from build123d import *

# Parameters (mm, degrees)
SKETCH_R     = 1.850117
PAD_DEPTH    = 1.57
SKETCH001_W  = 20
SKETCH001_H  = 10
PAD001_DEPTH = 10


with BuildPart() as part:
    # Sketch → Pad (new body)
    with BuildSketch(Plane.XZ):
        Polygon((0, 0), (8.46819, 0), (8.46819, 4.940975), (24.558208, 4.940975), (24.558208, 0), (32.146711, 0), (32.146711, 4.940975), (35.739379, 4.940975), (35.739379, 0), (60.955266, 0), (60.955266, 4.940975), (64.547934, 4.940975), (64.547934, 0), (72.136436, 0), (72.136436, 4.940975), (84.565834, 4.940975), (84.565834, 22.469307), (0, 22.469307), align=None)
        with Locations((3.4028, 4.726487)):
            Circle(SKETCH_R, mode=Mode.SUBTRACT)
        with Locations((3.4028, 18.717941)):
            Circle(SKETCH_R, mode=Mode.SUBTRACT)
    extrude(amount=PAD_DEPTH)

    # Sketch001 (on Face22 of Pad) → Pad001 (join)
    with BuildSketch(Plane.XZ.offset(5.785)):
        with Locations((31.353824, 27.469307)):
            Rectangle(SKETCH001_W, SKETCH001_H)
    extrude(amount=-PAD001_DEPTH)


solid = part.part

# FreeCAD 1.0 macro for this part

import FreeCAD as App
import Part
import Sketcher
from FreeCAD import Vector
Q = App.Units.Quantity


def add_polygon(sketch, points):
    """Adds a closed chain of lines whose ends are joined by coincident constraints."""
    first, n = sketch.GeometryCount, len(points)
    for a, b in zip(points, points[1:] + points[:1]):
        sketch.addGeometry(Part.LineSegment(App.Vector(*a, 0), App.Vector(*b, 0)), False)
    for i in range(n):
        sketch.addConstraint(Sketcher.Constraint("Coincident", first + i, 2, first + (i + 1) % n, 1))

doc = App.newDocument("Part")
body = doc.addObject("PartDesign::Body", "Body")

# Sketch on XZ plane
sketch1 = body.newObject("Sketcher::SketchObject", "Sketch")
sketch1.AttachmentSupport = (doc.getObject("XZ_Plane"), [""])
sketch1.MapMode = "FlatFace"
add_polygon(sketch1, [(0, 0), (8.5, 0), (8.5, 4.9), (24.6, 4.9), (24.6, 0), (32.1, 0), (32.1, 4.9), (35.7, 4.9), (35.7, 0), (61, 0), (61, 4.9), (64.5, 4.9), (64.5, 0), (72.1, 0), (72.1, 4.9), (84.6, 4.9), (84.6, 22.5), (0, 22.5)])  # lines 0-17
sketch1.addGeometry(Part.Circle(Vector(3.4, 4.7, 0), Vector(0, 0, 1), 1.9), False)  # 18
sketch1.addGeometry(Part.Circle(Vector(3.4, 18.7, 0), Vector(0, 0, 1), 1.9), False)  # 19
sketch1.addConstraint(Sketcher.Constraint("Horizontal", 0))
sketch1.addConstraint(Sketcher.Constraint("Vertical", 1))
sketch1.addConstraint(Sketcher.Constraint("Horizontal", 2))
sketch1.addConstraint(Sketcher.Constraint("Vertical", 3))
sketch1.addConstraint(Sketcher.Constraint("Horizontal", 4))
sketch1.addConstraint(Sketcher.Constraint("Vertical", 5))
sketch1.addConstraint(Sketcher.Constraint("Horizontal", 6))
sketch1.addConstraint(Sketcher.Constraint("Vertical", 7))
sketch1.addConstraint(Sketcher.Constraint("Horizontal", 8))
sketch1.addConstraint(Sketcher.Constraint("Vertical", 9))
sketch1.addConstraint(Sketcher.Constraint("Horizontal", 10))
sketch1.addConstraint(Sketcher.Constraint("Vertical", 11))
sketch1.addConstraint(Sketcher.Constraint("Horizontal", 12))
sketch1.addConstraint(Sketcher.Constraint("Vertical", 13))
sketch1.addConstraint(Sketcher.Constraint("Horizontal", 14))
sketch1.addConstraint(Sketcher.Constraint("Vertical", 15))
sketch1.addConstraint(Sketcher.Constraint("Horizontal", 16))
sketch1.addConstraint(Sketcher.Constraint("Vertical", 17))
sketch1.addConstraint(Sketcher.Constraint("Coincident", 17, 2, -1, 1))
sketch1.addConstraint(Sketcher.Constraint("Equal", 18, 19))
sketch1.addConstraint(Sketcher.Constraint("PointOnObject", 3, 2, -1))
sketch1.addConstraint(Sketcher.Constraint("PointOnObject", 7, 2, -1))
sketch1.addConstraint(Sketcher.Constraint("PointOnObject", 11, 2, -1))
sketch1.addConstraint(Sketcher.Constraint("Horizontal", 2, 2, 5, 2))
sketch1.addConstraint(Sketcher.Constraint("Horizontal", 6, 2, 9, 2))
sketch1.addConstraint(Sketcher.Constraint("Horizontal", 10, 2, 13, 2))
sketch1.addConstraint(Sketcher.Constraint("Vertical", 18, 3, 19, 3))
sketch1.addConstraint(Sketcher.Constraint("Equal", 6, 10))
sketch1.addConstraint(Sketcher.Constraint("Equal", 4, 12))
sketch1.addConstraint(Sketcher.Constraint("Diameter", 18, Q("3.700234 mm")))
sketch1.addConstraint(Sketcher.Constraint("DistanceX", 0, 1, 0, 2, Q("8.46819 mm")))
sketch1.addConstraint(Sketcher.Constraint("DistanceX", 2, 1, 2, 2, Q("16.090018 mm")))
sketch1.addConstraint(Sketcher.Constraint("DistanceY", 15, 1, 15, 2, Q("17.528332 mm")))
sketch1.addConstraint(Sketcher.Constraint("DistanceX", -1, 1, 18, 3, Q("3.4028 mm")))
sketch1.addConstraint(Sketcher.Constraint("DistanceX", 10, 2, 14, 2, Q("20.0179 mm")))
sketch1.addConstraint(Sketcher.Constraint("DistanceX", 4, 1, 4, 2, Q("7.588503 mm")))
sketch1.addConstraint(Sketcher.Constraint("DistanceX", 6, 1, 6, 2, Q("3.592668 mm")))
sketch1.addConstraint(Sketcher.Constraint("DistanceX", 8, 1, 8, 2, Q("25.215887 mm")))
sketch1.addConstraint(Sketcher.Constraint("DistanceY", 1, 1, 1, 2, Q("4.940975 mm")))
sketch1.addConstraint(Sketcher.Constraint("DistanceY", -1, 1, 19, 3, Q("18.717941 mm")))
sketch1.addConstraint(Sketcher.Constraint("DistanceY", 18, 3, 1, 2, Q("0.214488 mm")))
pad1 = body.newObject("PartDesign::Pad", "Pad")
pad1.Profile = sketch1
pad1.Length = 1.57

# Sketch on XZ plane
sketch2 = body.newObject("Sketcher::SketchObject", "Sketch001")
sketch2.AttachmentSupport = (doc.getObject("XZ_Plane"), [""])
sketch2.MapMode = "FlatFace"
sketch2.AttachmentOffset = App.Placement(Vector(0, 0, 5.785), App.Rotation())
add_polygon(sketch2, [(21, 32), (21, 22), (41, 22), (41, 32)])  # lines 0-3
sketch2.addConstraint(Sketcher.Constraint("Vertical", 0))
sketch2.addConstraint(Sketcher.Constraint("Horizontal", 1))
sketch2.addConstraint(Sketcher.Constraint("Vertical", 2))
sketch2.addConstraint(Sketcher.Constraint("Horizontal", 3))
sketch2.addConstraint(Sketcher.Constraint("DistanceX", 1, 1, 1, 2, Q("20 mm")))
sketch2.addConstraint(Sketcher.Constraint("DistanceY", 0, 2, 0, 1, Q("10 mm")))
sketch2.addConstraint(Sketcher.Constraint("DistanceX", -1, 1, 0, 2, Q("21.353824 mm")))
sketch2.addConstraint(Sketcher.Constraint("DistanceY", -1, 1, 0, 2, Q("22.469307 mm")))
pad2 = body.newObject("PartDesign::Pad", "Pad001")
pad2.Profile = sketch2
pad2.Length = 10
pad2.Reversed = True

doc.recompute()
